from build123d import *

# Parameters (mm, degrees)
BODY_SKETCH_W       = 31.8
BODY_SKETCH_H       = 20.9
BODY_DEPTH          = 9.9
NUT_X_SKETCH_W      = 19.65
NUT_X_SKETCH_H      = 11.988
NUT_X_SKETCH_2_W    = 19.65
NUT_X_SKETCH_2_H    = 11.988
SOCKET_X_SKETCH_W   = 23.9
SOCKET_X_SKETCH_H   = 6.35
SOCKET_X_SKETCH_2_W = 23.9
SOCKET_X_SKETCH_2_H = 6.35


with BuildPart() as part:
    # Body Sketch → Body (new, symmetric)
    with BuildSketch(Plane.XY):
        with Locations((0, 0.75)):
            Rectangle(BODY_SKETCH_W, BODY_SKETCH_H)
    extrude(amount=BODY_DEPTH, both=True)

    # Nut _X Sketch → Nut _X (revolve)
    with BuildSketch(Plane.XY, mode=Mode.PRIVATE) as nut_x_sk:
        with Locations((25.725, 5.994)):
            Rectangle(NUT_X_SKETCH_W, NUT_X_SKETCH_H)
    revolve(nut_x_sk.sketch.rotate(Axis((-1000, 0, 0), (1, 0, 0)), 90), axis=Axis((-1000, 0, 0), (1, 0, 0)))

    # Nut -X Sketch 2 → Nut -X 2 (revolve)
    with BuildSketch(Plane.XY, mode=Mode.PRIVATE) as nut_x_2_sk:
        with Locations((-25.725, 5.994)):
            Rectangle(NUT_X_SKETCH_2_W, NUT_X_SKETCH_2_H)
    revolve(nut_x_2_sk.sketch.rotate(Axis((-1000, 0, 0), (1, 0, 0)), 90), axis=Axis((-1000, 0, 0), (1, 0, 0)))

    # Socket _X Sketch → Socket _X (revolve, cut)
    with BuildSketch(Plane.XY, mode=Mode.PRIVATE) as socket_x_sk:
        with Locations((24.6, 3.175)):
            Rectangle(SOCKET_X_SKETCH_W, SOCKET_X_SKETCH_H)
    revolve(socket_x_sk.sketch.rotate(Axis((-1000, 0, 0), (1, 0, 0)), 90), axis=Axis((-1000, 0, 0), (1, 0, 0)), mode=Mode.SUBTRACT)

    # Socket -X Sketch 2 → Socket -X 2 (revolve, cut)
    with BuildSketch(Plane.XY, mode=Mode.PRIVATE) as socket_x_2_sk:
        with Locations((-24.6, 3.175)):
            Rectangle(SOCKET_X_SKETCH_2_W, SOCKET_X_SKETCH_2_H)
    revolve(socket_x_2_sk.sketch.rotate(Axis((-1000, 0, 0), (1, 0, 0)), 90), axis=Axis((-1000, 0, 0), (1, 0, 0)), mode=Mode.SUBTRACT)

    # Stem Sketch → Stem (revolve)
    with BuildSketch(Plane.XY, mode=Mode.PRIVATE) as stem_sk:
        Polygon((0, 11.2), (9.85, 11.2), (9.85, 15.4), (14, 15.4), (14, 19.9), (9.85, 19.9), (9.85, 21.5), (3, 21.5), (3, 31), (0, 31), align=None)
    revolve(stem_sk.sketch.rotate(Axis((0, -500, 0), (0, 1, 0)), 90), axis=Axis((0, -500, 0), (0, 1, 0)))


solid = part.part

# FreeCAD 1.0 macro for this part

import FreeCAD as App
import Part
import Sketcher
from FreeCAD import Vector


def add_polygon(sketch, points):
    """Adds a closed chain of lines whose ends are joined by coincident constraints."""
    first, n = sketch.GeometryCount, len(points)
    for a, b in zip(points, points[1:] + points[:1]):
        sketch.addGeometry(Part.LineSegment(App.Vector(*a, 0), App.Vector(*b, 0)), False)
    for i in range(n):
        sketch.addConstraint(Sketcher.Constraint("Coincident", first + i, 2, first + (i + 1) % n, 1))

doc = App.newDocument("Part")
params = doc.addObject("Spreadsheet::Sheet", "Params")
for row, (alias, value) in enumerate([
    ("sketch1_width", "31.8 mm"),
    ("sketch1_height", "20.9 mm"),
    ("pad1_length", "19.8 mm"),
    ("sketch2_width", "19.65 mm"),
    ("revolution_angle", "360 deg"),
    ("sketch3_width", "19.65 mm"),
    ("revolution2_angle", "360 deg"),
    ("sketch4_width", "23.9 mm"),
    ("sketch4_height", "6.35 mm"),
    ("groove_angle", "360 deg"),
    ("sketch5_width", "23.9 mm"),
    ("sketch5_height", "6.35 mm"),
    ("groove2_angle", "360 deg"),
    ("sketch6_width", "3 mm"),
    ("sketch6_height", "4.2 mm"),
    ("sketch6_height2", "4.5 mm"),
    ("sketch6_height3", "1.6 mm"),
    ("sketch6_height4", "9.5 mm"),
    ("revolution3_angle", "360 deg"),
], start=1):
    params.set(f"A{row}", alias)
    params.set(f"B{row}", "=" + value)
    params.setAlias(f"B{row}", alias)

body = doc.addObject("PartDesign::Body", "Body")

# Sketch on XY plane
sketch1 = body.newObject("Sketcher::SketchObject", "Sketch")
sketch1.AttachmentSupport = (doc.getObject("XY_Plane"), [""])
sketch1.MapMode = "FlatFace"
add_polygon(sketch1, [(-16, 11), (-16, -10), (16, -10), (16, 11)])  # lines 0-3
sketch1.addConstraint([
    Sketcher.Constraint("Vertical", 0),
    Sketcher.Constraint("Horizontal", 1),
    Sketcher.Constraint("Vertical", 2),
    Sketcher.Constraint("Horizontal", 3),
    Sketcher.Constraint("DistanceX", 1, 1, 1, 2, 31.8),
    Sketcher.Constraint("DistanceY", 0, 2, 0, 1, 20.9),
    Sketcher.Constraint("DistanceX", 0, 2, -1, 1, 15.9),
    Sketcher.Constraint("DistanceY", 0, 2, -1, 1, 9.7),
])
sketch1.setExpression("Constraints[8]", "Params.sketch1_width")
sketch1.setExpression("Constraints[9]", "Params.sketch1_height")
pad1 = body.newObject("PartDesign::Pad", "Pad")
pad1.Profile = sketch1
pad1.setExpression("Length", "Params.pad1_length")
pad1.Midplane = True

# Sketch on XY plane
sketch2 = body.newObject("Sketcher::SketchObject", "Sketch001")
sketch2.AttachmentSupport = (doc.getObject("XY_Plane"), [""])
sketch2.MapMode = "FlatFace"
add_polygon(sketch2, [(16, 12), (16, 0), (36, 0), (36, 12)])  # lines 0-3
sketch2.addConstraint([
    Sketcher.Constraint("Vertical", 0),
    Sketcher.Constraint("Horizontal", 1),
    Sketcher.Constraint("Vertical", 2),
    Sketcher.Constraint("Horizontal", 3),
    Sketcher.Constraint("PointOnObject", 0, 2, -1),
    Sketcher.Constraint("DistanceX", 1, 1, 1, 2, 19.65),
    Sketcher.Constraint("DistanceX", -1, 1, 0, 2, 15.9),
    Sketcher.Constraint("DistanceY", 0, 2, 0, 1, 11.988),
])
sketch2.setExpression("Constraints[9]", "Params.sketch2_width")
revolution = body.newObject("PartDesign::Revolution", "Revolution")
revolution.Profile = sketch2
revolution.ReferenceAxis = (sketch2, ["H_Axis"])
revolution.setExpression("Angle", "Params.revolution_angle")

# Sketch on XY plane
sketch3 = body.newObject("Sketcher::SketchObject", "Sketch002")
sketch3.AttachmentSupport = (doc.getObject("XY_Plane"), [""])
sketch3.MapMode = "FlatFace"
add_polygon(sketch3, [(-36, 12), (-36, 0), (-16, 0), (-16, 12)])  # lines 0-3
sketch3.addConstraint([
    Sketcher.Constraint("Vertical", 0),
    Sketcher.Constraint("Horizontal", 1),
    Sketcher.Constraint("Vertical", 2),
    Sketcher.Constraint("Horizontal", 3),
    Sketcher.Constraint("PointOnObject", 0, 2, -1),
    Sketcher.Constraint("DistanceX", 1, 1, 1, 2, 19.65),
    Sketcher.Constraint("DistanceX", 1, 2, -1, 1, 15.9),
    Sketcher.Constraint("DistanceY", 0, 2, 0, 1, 11.988),
])
sketch3.setExpression("Constraints[9]", "Params.sketch3_width")
revolution2 = body.newObject("PartDesign::Revolution", "Revolution001")
revolution2.Profile = sketch3
revolution2.ReferenceAxis = (sketch3, ["H_Axis"])
revolution2.setExpression("Angle", "Params.revolution2_angle")

# Sketch on XY plane
sketch4 = body.newObject("Sketcher::SketchObject", "Sketch003")
sketch4.AttachmentSupport = (doc.getObject("XY_Plane"), [""])
sketch4.MapMode = "FlatFace"
add_polygon(sketch4, [(13, 6), (13, 0), (37, 0), (37, 6)])  # lines 0-3
sketch4.addConstraint([
    Sketcher.Constraint("Vertical", 0),
    Sketcher.Constraint("Horizontal", 1),
    Sketcher.Constraint("Vertical", 2),
    Sketcher.Constraint("Horizontal", 3),
    Sketcher.Constraint("PointOnObject", 0, 2, -1),
    Sketcher.Constraint("DistanceX", 1, 1, 1, 2, 23.9),
    Sketcher.Constraint("DistanceY", 0, 2, 0, 1, 6.35),
    Sketcher.Constraint("DistanceX", -1, 1, 0, 2, 12.65),
])
sketch4.setExpression("Constraints[9]", "Params.sketch4_width")
sketch4.setExpression("Constraints[10]", "Params.sketch4_height")
groove = body.newObject("PartDesign::Groove", "Groove")
groove.Profile = sketch4
groove.ReferenceAxis = (sketch4, ["H_Axis"])
groove.setExpression("Angle", "Params.groove_angle")

# Sketch on XY plane
sketch5 = body.newObject("Sketcher::SketchObject", "Sketch004")
sketch5.AttachmentSupport = (doc.getObject("XY_Plane"), [""])
sketch5.MapMode = "FlatFace"
add_polygon(sketch5, [(-37, 6), (-37, 0), (-13, 0), (-13, 6)])  # lines 0-3
sketch5.addConstraint([
    Sketcher.Constraint("Vertical", 0),
    Sketcher.Constraint("Horizontal", 1),
    Sketcher.Constraint("Vertical", 2),
    Sketcher.Constraint("Horizontal", 3),
    Sketcher.Constraint("PointOnObject", 0, 2, -1),
    Sketcher.Constraint("DistanceX", 1, 1, 1, 2, 23.9),
    Sketcher.Constraint("DistanceY", 0, 2, 0, 1, 6.35),
    Sketcher.Constraint("DistanceX", 0, 2, -1, 1, 36.55),
])
sketch5.setExpression("Constraints[9]", "Params.sketch5_width")
sketch5.setExpression("Constraints[10]", "Params.sketch5_height")
groove2 = body.newObject("PartDesign::Groove", "Groove001")
groove2.Profile = sketch5
groove2.ReferenceAxis = (sketch5, ["H_Axis"])
groove2.setExpression("Angle", "Params.groove2_angle")

# Sketch on XY plane
sketch6 = body.newObject("Sketcher::SketchObject", "Sketch005")
sketch6.AttachmentSupport = (doc.getObject("XY_Plane"), [""])
sketch6.MapMode = "FlatFace"
add_polygon(sketch6, [(0, 11.2), (9.8, 11.2), (9.8, 15.4), (14, 15.4), (14, 19.9), (9.8, 19.9), (9.8, 21.5), (3, 21.5), (3, 31), (0, 31)])  # lines 0-9
sketch6.addConstraint([
    Sketcher.Constraint("Horizontal", 0),
    Sketcher.Constraint("Vertical", 1),
    Sketcher.Constraint("Horizontal", 2),
    Sketcher.Constraint("Vertical", 3),
    Sketcher.Constraint("Horizontal", 4),
    Sketcher.Constraint("Vertical", 5),
    Sketcher.Constraint("Horizontal", 6),
    Sketcher.Constraint("Vertical", 7),
    Sketcher.Constraint("Horizontal", 8),
    Sketcher.Constraint("Vertical", 9),
    Sketcher.Constraint("PointOnObject", 8, 2, -2),
    Sketcher.Constraint("Vertical", 1, 2, 4, 2),
    Sketcher.Constraint("DistanceX", 8, 2, 8, 1, 3.0),
    Sketcher.Constraint("DistanceY", 1, 1, 1, 2, 4.2),
    Sketcher.Constraint("DistanceY", 3, 1, 3, 2, 4.5),
    Sketcher.Constraint("DistanceY", 5, 1, 5, 2, 1.6),
    Sketcher.Constraint("DistanceY", 7, 1, 7, 2, 9.5),
    Sketcher.Constraint("DistanceX", -1, 1, 2, 2, 14.0),
    Sketcher.Constraint("DistanceY", -1, 1, 7, 2, 31.0),
    Sketcher.Constraint("DistanceX", 0, 1, 0, 2, 9.85),
])
sketch6.setExpression("Constraints[22]", "Params.sketch6_width")
sketch6.setExpression("Constraints[23]", "Params.sketch6_height")
sketch6.setExpression("Constraints[24]", "Params.sketch6_height2")
sketch6.setExpression("Constraints[25]", "Params.sketch6_height3")
sketch6.setExpression("Constraints[26]", "Params.sketch6_height4")
revolution3 = body.newObject("PartDesign::Revolution", "Revolution002")
revolution3.Profile = sketch6
revolution3.ReferenceAxis = (sketch6, ["V_Axis"])
revolution3.setExpression("Angle", "Params.revolution3_angle")

doc.recompute()
